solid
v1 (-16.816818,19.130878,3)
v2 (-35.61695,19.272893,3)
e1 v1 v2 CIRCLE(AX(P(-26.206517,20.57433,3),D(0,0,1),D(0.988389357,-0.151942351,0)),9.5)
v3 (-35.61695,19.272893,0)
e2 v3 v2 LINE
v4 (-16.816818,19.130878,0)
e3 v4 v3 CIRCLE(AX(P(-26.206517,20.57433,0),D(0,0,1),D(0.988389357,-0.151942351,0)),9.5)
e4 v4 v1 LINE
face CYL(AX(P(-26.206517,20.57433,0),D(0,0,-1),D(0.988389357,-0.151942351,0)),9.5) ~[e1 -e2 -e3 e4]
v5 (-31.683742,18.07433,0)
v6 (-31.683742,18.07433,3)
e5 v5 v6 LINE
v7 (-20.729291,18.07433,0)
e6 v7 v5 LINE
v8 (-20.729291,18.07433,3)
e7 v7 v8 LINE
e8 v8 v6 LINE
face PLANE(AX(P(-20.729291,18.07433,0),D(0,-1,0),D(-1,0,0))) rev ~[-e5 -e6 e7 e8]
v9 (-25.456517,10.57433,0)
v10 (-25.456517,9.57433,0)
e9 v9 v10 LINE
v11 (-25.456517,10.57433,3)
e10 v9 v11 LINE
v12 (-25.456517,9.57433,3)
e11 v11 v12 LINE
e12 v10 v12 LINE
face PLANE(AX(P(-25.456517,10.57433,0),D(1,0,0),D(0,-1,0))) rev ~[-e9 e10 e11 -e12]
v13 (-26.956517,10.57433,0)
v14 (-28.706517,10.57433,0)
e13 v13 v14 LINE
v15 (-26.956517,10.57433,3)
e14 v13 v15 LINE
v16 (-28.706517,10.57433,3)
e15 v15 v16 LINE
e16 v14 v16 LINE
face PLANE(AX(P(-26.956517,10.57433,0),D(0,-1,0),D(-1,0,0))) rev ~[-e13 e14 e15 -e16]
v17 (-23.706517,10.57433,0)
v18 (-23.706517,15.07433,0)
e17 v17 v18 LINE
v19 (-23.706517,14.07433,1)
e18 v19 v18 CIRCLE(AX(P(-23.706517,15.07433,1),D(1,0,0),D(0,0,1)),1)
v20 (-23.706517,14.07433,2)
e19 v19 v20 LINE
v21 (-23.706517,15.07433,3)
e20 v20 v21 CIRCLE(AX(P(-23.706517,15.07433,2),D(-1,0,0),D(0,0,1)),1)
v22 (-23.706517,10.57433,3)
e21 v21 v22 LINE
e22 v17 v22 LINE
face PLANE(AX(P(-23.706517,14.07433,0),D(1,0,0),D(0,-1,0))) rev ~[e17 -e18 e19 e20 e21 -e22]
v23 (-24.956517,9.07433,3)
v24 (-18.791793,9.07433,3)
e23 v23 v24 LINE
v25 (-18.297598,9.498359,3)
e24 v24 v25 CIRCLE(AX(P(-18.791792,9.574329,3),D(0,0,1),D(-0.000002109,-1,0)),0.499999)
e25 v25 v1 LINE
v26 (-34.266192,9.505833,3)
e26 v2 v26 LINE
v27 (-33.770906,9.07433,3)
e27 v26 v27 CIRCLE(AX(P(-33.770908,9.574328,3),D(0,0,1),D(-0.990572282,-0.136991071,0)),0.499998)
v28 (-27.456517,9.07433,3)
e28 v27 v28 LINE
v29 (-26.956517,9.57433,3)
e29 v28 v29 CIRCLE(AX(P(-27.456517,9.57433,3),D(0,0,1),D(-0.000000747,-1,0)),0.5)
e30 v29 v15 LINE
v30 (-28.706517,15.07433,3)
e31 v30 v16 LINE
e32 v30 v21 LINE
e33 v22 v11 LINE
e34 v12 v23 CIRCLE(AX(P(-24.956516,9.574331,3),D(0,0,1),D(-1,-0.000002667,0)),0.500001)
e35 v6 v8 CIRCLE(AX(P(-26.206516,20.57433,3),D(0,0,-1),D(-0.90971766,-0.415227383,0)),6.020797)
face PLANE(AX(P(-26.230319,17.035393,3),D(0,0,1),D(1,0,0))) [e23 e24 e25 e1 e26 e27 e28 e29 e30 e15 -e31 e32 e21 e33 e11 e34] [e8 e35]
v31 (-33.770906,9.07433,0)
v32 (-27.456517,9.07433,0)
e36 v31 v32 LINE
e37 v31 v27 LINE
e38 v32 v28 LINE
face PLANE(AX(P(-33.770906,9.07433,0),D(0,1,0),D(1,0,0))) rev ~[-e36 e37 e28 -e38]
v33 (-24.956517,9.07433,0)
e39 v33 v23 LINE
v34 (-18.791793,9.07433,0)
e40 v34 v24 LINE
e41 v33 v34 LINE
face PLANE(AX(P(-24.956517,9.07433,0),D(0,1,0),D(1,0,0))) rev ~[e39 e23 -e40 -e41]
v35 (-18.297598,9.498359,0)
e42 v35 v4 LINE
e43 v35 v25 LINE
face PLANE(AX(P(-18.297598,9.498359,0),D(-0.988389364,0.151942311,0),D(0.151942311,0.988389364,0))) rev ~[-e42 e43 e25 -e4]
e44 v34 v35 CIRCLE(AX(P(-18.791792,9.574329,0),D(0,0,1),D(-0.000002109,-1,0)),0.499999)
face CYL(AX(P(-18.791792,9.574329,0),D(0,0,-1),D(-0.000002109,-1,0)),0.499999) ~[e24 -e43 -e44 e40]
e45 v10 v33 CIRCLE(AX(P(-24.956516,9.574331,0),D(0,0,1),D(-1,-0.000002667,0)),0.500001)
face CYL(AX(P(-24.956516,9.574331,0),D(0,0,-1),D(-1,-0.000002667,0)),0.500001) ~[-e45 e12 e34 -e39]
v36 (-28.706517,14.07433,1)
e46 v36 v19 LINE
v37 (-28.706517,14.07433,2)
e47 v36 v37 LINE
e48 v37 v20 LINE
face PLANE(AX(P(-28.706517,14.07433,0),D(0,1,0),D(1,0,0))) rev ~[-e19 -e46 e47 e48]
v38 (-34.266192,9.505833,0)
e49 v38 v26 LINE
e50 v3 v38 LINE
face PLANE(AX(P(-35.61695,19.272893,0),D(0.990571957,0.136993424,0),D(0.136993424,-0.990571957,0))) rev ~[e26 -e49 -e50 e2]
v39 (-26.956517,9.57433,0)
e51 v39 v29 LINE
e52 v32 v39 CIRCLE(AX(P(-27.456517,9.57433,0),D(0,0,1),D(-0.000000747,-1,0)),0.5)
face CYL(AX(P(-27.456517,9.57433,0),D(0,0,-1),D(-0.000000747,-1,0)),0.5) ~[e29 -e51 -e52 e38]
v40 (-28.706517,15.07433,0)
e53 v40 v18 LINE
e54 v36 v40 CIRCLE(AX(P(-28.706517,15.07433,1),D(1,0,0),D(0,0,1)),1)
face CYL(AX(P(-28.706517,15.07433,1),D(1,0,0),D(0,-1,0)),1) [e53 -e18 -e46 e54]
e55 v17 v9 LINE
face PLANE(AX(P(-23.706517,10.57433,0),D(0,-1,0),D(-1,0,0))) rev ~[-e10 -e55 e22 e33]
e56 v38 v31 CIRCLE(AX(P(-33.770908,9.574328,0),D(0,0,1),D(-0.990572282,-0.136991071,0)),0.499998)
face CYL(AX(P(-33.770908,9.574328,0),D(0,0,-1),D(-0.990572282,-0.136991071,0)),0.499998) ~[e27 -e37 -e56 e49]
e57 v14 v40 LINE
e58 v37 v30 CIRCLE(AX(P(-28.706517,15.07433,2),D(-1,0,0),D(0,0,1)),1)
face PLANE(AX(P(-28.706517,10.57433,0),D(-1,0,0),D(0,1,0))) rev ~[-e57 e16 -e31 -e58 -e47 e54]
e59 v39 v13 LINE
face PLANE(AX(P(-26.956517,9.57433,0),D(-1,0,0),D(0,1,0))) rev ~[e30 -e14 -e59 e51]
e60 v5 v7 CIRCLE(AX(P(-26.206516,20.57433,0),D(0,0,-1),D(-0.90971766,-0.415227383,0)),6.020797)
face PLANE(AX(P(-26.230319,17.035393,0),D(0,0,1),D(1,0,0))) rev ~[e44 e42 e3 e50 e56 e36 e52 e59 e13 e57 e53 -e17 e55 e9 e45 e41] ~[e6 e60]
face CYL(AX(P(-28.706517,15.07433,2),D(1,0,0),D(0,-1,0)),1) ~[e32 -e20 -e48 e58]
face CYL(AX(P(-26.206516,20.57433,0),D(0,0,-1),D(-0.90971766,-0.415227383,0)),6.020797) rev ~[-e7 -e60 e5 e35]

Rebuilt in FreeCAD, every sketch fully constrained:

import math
import FreeCAD as App
import Part
import Sketcher
from FreeCAD import Vector
Q = App.Units.Quantity


def edges_at(feature, points):
    """Names of the edges that pass closest to the given points."""
    edges = feature.Shape.Edges
    near = lambda p: min(range(len(edges)), key=lambda i: edges[i].distToShape(Part.Vertex(*p))[0])
    return sorted({f"Edge{near(p) + 1}" for p in points})

doc = App.newDocument("Part")
body = doc.addObject("PartDesign::Body", "Body")

sketch1 = doc.addObject("Sketcher::SketchObject", "Sketch")
body.addObject(sketch1)
sketch1.AttachmentSupport = (doc.XY_Plane, [""])
sketch1.MapMode = "FlatFace"
sketch1.addGeometry(Part.LineSegment(Vector(-28.706517, 10.57433, 0), Vector(-28.706517, 14.07433, 0)), False)
sketch1.addGeometry(Part.LineSegment(Vector(-28.706517, 14.07433, 0), Vector(-23.706517, 14.07433, 0)), False)
sketch1.addGeometry(Part.LineSegment(Vector(-23.706517, 14.07433, 0), Vector(-23.706517, 10.57433, 0)), False)
sketch1.addGeometry(Part.LineSegment(Vector(-23.706517, 10.57433, 0), Vector(-25.456517, 10.57433, 0)), False)
sketch1.addGeometry(Part.LineSegment(Vector(-25.456517, 10.57433, 0), Vector(-25.456517, 9.57433, 0)), False)
sketch1.addGeometry(Part.ArcOfCircle(Part.Circle(Vector(-24.956516, 9.574331, 0), Vector(0, 0, 1), 0.500001), math.radians(-179.999847), math.radians(-90.000153)), False)
sketch1.addGeometry(Part.LineSegment(Vector(-24.956517, 9.07433, 0), Vector(-18.791793, 9.07433, 0)), False)
sketch1.addGeometry(Part.ArcOfCircle(Part.Circle(Vector(-18.791792, 9.574329, 0), Vector(0, 0, 1), 0.499999), math.radians(-90.000121), math.radians(-8.739398)), False)
sketch1.addGeometry(Part.LineSegment(Vector(-18.297598, 9.498359, 0), Vector(-16.816818, 19.130878, 0)), False)
sketch1.addGeometry(Part.ArcOfCircle(Part.Circle(Vector(-26.206517, 20.57433, 0), Vector(0, 0, 1), 9.5), math.radians(-8.739505), math.radians(187.873905)), False)
sketch1.addGeometry(Part.LineSegment(Vector(-35.61695, 19.272893, 0), Vector(-34.266192, 9.505833, 0)), False)
sketch1.addGeometry(Part.ArcOfCircle(Part.Circle(Vector(-33.770908, 9.574328, 0), Vector(0, 0, 1), 0.499998), math.radians(-172.12623), math.radians(-89.999824)), False)
sketch1.addGeometry(Part.LineSegment(Vector(-33.770906, 9.07433, 0), Vector(-27.456517, 9.07433, 0)), False)
sketch1.addGeometry(Part.ArcOfCircle(Part.Circle(Vector(-27.456517, 9.57433, 0), Vector(0, 0, 1), 0.5), math.radians(-90.000043), math.radians(0.000043)), False)
sketch1.addGeometry(Part.LineSegment(Vector(-26.956517, 9.57433, 0), Vector(-26.956517, 10.57433, 0)), False)
sketch1.addGeometry(Part.LineSegment(Vector(-26.956517, 10.57433, 0), Vector(-28.706517, 10.57433, 0)), False)
sketch1.addGeometry(Part.ArcOfCircle(Part.Circle(Vector(-26.206516, 20.57433, 0), Vector(0, 0, 1), 6.020797), math.radians(-24.533637), math.radians(204.533637)), False)
sketch1.addGeometry(Part.LineSegment(Vector(-20.729291, 18.07433, 0), Vector(-31.683742, 18.07433, 0)), False)
sketch1.addConstraint(Sketcher.Constraint("Coincident", 0, 2, 1, 1))
sketch1.addConstraint(Sketcher.Constraint("Coincident", 1, 2, 2, 1))
sketch1.addConstraint(Sketcher.Constraint("Coincident", 2, 2, 3, 1))
sketch1.addConstraint(Sketcher.Constraint("Coincident", 3, 2, 4, 1))
sketch1.addConstraint(Sketcher.Constraint("Coincident", 4, 2, 5, 1))
sketch1.addConstraint(Sketcher.Constraint("Coincident", 5, 2, 6, 1))
sketch1.addConstraint(Sketcher.Constraint("Coincident", 6, 2, 7, 1))
sketch1.addConstraint(Sketcher.Constraint("Coincident", 7, 2, 8, 1))
sketch1.addConstraint(Sketcher.Constraint("Coincident", 8, 2, 9, 1))
sketch1.addConstraint(Sketcher.Constraint("Coincident", 9, 2, 10, 1))
sketch1.addConstraint(Sketcher.Constraint("Coincident", 10, 2, 11, 1))
sketch1.addConstraint(Sketcher.Constraint("Coincident", 11, 2, 12, 1))
sketch1.addConstraint(Sketcher.Constraint("Coincident", 12, 2, 13, 1))
sketch1.addConstraint(Sketcher.Constraint("Coincident", 13, 2, 14, 1))
sketch1.addConstraint(Sketcher.Constraint("Coincident", 14, 2, 15, 1))
sketch1.addConstraint(Sketcher.Constraint("Coincident", 15, 2, 0, 1))
sketch1.addConstraint(Sketcher.Constraint("Coincident", 16, 1, 17, 1))
sketch1.addConstraint(Sketcher.Constraint("Coincident", 17, 2, 16, 2))
sketch1.addConstraint(Sketcher.Constraint("Vertical", 0))
sketch1.addConstraint(Sketcher.Constraint("Horizontal", 1))
sketch1.addConstraint(Sketcher.Constraint("Vertical", 2))
sketch1.addConstraint(Sketcher.Constraint("Horizontal", 3))
sketch1.addConstraint(Sketcher.Constraint("Vertical", 4))
sketch1.addConstraint(Sketcher.Constraint("Horizontal", 6))
sketch1.addConstraint(Sketcher.Constraint("Horizontal", 12))
sketch1.addConstraint(Sketcher.Constraint("Vertical", 14))
sketch1.addConstraint(Sketcher.Constraint("Horizontal", 15))
sketch1.addConstraint(Sketcher.Constraint("Horizontal", 17))
sketch1.addConstraint(Sketcher.Constraint("Coincident", 16, 3, 9, 3))
sketch1.addConstraint(Sketcher.Constraint("Radius", 5, Q("0.500001 mm")))
sketch1.addConstraint(Sketcher.Constraint("Radius", 7, Q("0.499999 mm")))
sketch1.addConstraint(Sketcher.Constraint("Radius", 9, Q("9.5 mm")))
sketch1.addConstraint(Sketcher.Constraint("Radius", 11, Q("0.499998 mm")))
sketch1.addConstraint(Sketcher.Constraint("Radius", 13, Q("0.5 mm")))
sketch1.addConstraint(Sketcher.Constraint("DistanceX", 1, 1, 1, 2, Q("5 mm")))
sketch1.addConstraint(Sketcher.Constraint("DistanceY", 4, 2, 4, 1, Q("1 mm")))
sketch1.addConstraint(Sketcher.Constraint("DistanceY", 14, 1, 14, 2, Q("1 mm")))
sketch1.addConstraint(Sketcher.Constraint("DistanceY", 0, 1, 0, 2, Q("3.5 mm")))
sketch1.addConstraint(Sketcher.Constraint("DistanceY", 2, 2, 2, 1, Q("3.5 mm")))
sketch1.addConstraint(Sketcher.Constraint("DistanceY", 5, 3, 9, 3, Q("10.999999 mm")))
sketch1.addConstraint(Sketcher.Constraint("DistanceY", 11, 3, 9, 3, Q("11.000002 mm")))
sketch1.addConstraint(Sketcher.Constraint("DistanceY", 5, 3, 2, 2, Q("0.999999 mm")))
sketch1.addConstraint(Sketcher.Constraint("DistanceX", 13, 3, 3, 2, Q("2 mm")))
sketch1.addConstraint(Sketcher.Constraint("DistanceX", 12, 2, 4, 2, Q("2 mm")))
sketch1.addConstraint(Sketcher.Constraint("DistanceY", 1, 2, 16, 1, Q("4 mm")))
sketch1.addConstraint(Sketcher.Constraint("DistanceX", 3, 2, 3, 1, Q("1.75 mm")))
sketch1.addConstraint(Sketcher.Constraint("DistanceX", 0, 2, 16, 3, Q("2.500001 mm")))
sketch1.addConstraint(Sketcher.Constraint("DistanceX", 4, 2, 5, 2, Q("0.5 mm")))
sketch1.addConstraint(Sketcher.Constraint("Radius", 16, Q("6.020797 mm")))
sketch1.addConstraint(Sketcher.Constraint("DistanceX", 12, 1, 12, 2, Q("6.314389 mm")))
sketch1.addConstraint(Sketcher.Constraint("DistanceX", 7, 2, -1, 1, Q("18.297598 mm")))
sketch1.addConstraint(Sketcher.Constraint("DistanceX", 1, 2, 8, 2, Q("6.889699 mm")))
sketch1.addConstraint(Sketcher.Constraint("Distance", 10, Q("9.860021 mm")))
sketch1.addConstraint(Sketcher.Constraint("DistanceX", 6, 1, 6, 2, Q("6.164724 mm")))
sketch1.addConstraint(Sketcher.Constraint("DistanceY", -1, 1, 5, 3, Q("9.574331 mm")))
sketch1.addConstraint(Sketcher.Constraint("DistanceX", 7, 3, -1, 1, Q("18.791792 mm")))
sketch1.addConstraint(Sketcher.Constraint("DistanceX", 8, 2, -1, 1, Q("16.816818 mm")))
sketch1.addConstraint(Sketcher.Constraint("DistanceX", 9, 2, -1, 1, Q("35.61695 mm")))
sketch1.addConstraint(Sketcher.Constraint("DistanceX", 10, 2, -1, 1, Q("34.266192 mm")))
pad1 = doc.addObject("PartDesign::Pad", "Pad")
body.addObject(pad1)
pad1.Profile = sketch1
pad1.Length = 3
doc.recompute()

fillet = doc.addObject("PartDesign::Fillet", "Fillet")
body.addObject(fillet)
fillet.Base = (pad1, edges_at(pad1, [(-26.207, 14.074, 3), (-26.207, 14.074, 0)]))
fillet.Radius = 1

doc.recompute()
